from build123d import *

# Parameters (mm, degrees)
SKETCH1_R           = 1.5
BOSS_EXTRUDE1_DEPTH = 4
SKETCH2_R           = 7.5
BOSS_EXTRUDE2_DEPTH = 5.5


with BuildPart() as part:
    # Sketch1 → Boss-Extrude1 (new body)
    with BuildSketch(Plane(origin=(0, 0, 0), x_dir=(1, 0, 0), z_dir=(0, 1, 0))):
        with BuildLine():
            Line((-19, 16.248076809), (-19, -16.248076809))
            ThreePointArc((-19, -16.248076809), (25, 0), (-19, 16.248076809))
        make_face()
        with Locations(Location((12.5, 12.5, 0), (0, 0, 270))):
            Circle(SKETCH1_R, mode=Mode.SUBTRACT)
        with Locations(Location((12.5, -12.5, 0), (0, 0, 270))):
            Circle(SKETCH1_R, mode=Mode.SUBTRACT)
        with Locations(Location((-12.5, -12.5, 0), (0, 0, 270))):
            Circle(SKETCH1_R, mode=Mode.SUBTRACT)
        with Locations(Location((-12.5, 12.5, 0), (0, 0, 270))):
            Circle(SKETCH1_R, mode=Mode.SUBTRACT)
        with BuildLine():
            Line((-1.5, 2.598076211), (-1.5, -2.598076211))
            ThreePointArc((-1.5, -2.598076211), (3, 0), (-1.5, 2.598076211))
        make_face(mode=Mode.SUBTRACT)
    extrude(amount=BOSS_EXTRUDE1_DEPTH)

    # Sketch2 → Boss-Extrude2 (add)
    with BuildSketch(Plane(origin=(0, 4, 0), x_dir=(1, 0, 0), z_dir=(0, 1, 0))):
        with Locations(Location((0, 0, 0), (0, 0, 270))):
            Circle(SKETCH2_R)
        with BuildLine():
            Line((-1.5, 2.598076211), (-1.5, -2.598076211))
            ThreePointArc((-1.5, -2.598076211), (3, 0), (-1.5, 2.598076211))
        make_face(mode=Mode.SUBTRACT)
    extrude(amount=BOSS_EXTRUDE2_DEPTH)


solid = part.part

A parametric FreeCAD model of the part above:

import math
import FreeCAD as App
import Part
import Sketcher

V = App.Vector

doc = App.newDocument("Part")
body = doc.addObject("PartDesign::Body", "Body")

# Sketch on XZ plane
sketch1 = body.newObject("Sketcher::SketchObject", "Sketch")
sketch1.AttachmentSupport = (doc.getObject("XZ_Plane"), [""])
sketch1.MapMode = "FlatFace"
sketch1.addGeometry(Part.LineSegment(V(-19, -16.2, 0), V(-19, 16.2, 0)), False)
sketch1.addGeometry(Part.ArcOfCircle(Part.Circle(V(0, 0, 0), V(0, 0, 1), 25), math.radians(-139), math.radians(139)), False)
sketch1.addGeometry(Part.Circle(V(-12.5, 12.5, 0), V(0, 0, 1), 1.5), False)
sketch1.addGeometry(Part.Circle(V(12.5, 12.5, 0), V(0, 0, 1), 1.5), False)
sketch1.addGeometry(Part.Circle(V(-12.5, -12.5, 0), V(0, 0, 1), 1.5), False)
sketch1.addGeometry(Part.LineSegment(V(-1.5, 2.6, 0), V(-1.5, -2.6, 0)), False)
sketch1.addGeometry(Part.ArcOfCircle(Part.Circle(V(0, 0, 0), V(0, 0, 1), 3), math.radians(-120), math.radians(120)), False)
sketch1.addGeometry(Part.Circle(V(12.5, -12.5, 0), V(0, 0, 1), 1.5), False)
sketch1.addConstraint(Sketcher.Constraint("Coincident", 0, 1, 1, 1))
sketch1.addConstraint(Sketcher.Constraint("Coincident", 1, 2, 0, 2))
sketch1.addConstraint(Sketcher.Constraint("Coincident", 5, 1, 6, 2))
sketch1.addConstraint(Sketcher.Constraint("Coincident", 6, 1, 5, 2))
sketch1.addConstraint(Sketcher.Constraint("Vertical", 0))
sketch1.addConstraint(Sketcher.Constraint("Vertical", 5))
sketch1.addConstraint(Sketcher.Constraint("Coincident", 1, 3, -1, 1))
sketch1.addConstraint(Sketcher.Constraint("Coincident", 6, 3, -1, 1))
sketch1.addConstraint(Sketcher.Constraint("Equal", 2, 3))
sketch1.addConstraint(Sketcher.Constraint("Equal", 3, 4))
sketch1.addConstraint(Sketcher.Constraint("Equal", 4, 7))
sketch1.addConstraint(Sketcher.Constraint("Symmetric", 3, 3, 4, 3, -1, 1))
sketch1.addConstraint(Sketcher.Constraint("Symmetric", 2, 3, 7, 3, -1, 1))
sketch1.addConstraint(Sketcher.Constraint("Symmetric", 2, 3, 3, 3, -2))
sketch1.addConstraint(Sketcher.Constraint("Diameter", 2, 3.0))
sketch1.addConstraint(Sketcher.Constraint("Radius", 1, 25.0))
sketch1.addConstraint(Sketcher.Constraint("Radius", 6, 3.0))
sketch1.addConstraint(Sketcher.Constraint("DistanceX", 0, 1, -1, 1, 19.0))
sketch1.addConstraint(Sketcher.Constraint("DistanceX", 2, 3, 3, 3, 25.0))
sketch1.addConstraint(Sketcher.Constraint("DistanceY", 4, 3, 2, 3, 25.0))
sketch1.addConstraint(Sketcher.Constraint("DistanceX", 2, 3, 5, 1, 11.0))
pad1 = body.newObject("PartDesign::Pad", "Pad")
pad1.Profile = sketch1
pad1.Length = 4
pad1.Reversed = True

# Sketch on XZ plane
sketch2 = body.newObject("Sketcher::SketchObject", "Sketch001")
sketch2.AttachmentSupport = (doc.getObject("XZ_Plane"), [""])
sketch2.MapMode = "FlatFace"
sketch2.AttachmentOffset = App.Placement(V(0, 0, -4), App.Rotation())
sketch2.addGeometry(Part.Circle(V(0, 0, 0), V(0, 0, 1), 7.5), False)
sketch2.addGeometry(Part.LineSegment(V(-1.5, 2.6, 0), V(-1.5, -2.6, 0)), False)
sketch2.addGeometry(Part.ArcOfCircle(Part.Circle(V(0, 0, 0), V(0, 0, 1), 3), math.radians(-120), math.radians(120)), False)
sketch2.addConstraint(Sketcher.Constraint("Coincident", 1, 1, 2, 2))
sketch2.addConstraint(Sketcher.Constraint("Coincident", 2, 1, 1, 2))
sketch2.addConstraint(Sketcher.Constraint("Vertical", 1))
sketch2.addConstraint(Sketcher.Constraint("Coincident", 0, 3, -1, 1))
sketch2.addConstraint(Sketcher.Constraint("Coincident", 2, 3, -1, 1))
sketch2.addConstraint(Sketcher.Constraint("Diameter", 0, 15.0))
sketch2.addConstraint(Sketcher.Constraint("Radius", 2, 3.0))
sketch2.addConstraint(Sketcher.Constraint("DistanceX", 1, 1, -1, 1, 1.5))
pad2 = body.newObject("PartDesign::Pad", "Pad001")
pad2.Profile = sketch2
pad2.Length = 5.5
pad2.Reversed = True

doc.recompute()
